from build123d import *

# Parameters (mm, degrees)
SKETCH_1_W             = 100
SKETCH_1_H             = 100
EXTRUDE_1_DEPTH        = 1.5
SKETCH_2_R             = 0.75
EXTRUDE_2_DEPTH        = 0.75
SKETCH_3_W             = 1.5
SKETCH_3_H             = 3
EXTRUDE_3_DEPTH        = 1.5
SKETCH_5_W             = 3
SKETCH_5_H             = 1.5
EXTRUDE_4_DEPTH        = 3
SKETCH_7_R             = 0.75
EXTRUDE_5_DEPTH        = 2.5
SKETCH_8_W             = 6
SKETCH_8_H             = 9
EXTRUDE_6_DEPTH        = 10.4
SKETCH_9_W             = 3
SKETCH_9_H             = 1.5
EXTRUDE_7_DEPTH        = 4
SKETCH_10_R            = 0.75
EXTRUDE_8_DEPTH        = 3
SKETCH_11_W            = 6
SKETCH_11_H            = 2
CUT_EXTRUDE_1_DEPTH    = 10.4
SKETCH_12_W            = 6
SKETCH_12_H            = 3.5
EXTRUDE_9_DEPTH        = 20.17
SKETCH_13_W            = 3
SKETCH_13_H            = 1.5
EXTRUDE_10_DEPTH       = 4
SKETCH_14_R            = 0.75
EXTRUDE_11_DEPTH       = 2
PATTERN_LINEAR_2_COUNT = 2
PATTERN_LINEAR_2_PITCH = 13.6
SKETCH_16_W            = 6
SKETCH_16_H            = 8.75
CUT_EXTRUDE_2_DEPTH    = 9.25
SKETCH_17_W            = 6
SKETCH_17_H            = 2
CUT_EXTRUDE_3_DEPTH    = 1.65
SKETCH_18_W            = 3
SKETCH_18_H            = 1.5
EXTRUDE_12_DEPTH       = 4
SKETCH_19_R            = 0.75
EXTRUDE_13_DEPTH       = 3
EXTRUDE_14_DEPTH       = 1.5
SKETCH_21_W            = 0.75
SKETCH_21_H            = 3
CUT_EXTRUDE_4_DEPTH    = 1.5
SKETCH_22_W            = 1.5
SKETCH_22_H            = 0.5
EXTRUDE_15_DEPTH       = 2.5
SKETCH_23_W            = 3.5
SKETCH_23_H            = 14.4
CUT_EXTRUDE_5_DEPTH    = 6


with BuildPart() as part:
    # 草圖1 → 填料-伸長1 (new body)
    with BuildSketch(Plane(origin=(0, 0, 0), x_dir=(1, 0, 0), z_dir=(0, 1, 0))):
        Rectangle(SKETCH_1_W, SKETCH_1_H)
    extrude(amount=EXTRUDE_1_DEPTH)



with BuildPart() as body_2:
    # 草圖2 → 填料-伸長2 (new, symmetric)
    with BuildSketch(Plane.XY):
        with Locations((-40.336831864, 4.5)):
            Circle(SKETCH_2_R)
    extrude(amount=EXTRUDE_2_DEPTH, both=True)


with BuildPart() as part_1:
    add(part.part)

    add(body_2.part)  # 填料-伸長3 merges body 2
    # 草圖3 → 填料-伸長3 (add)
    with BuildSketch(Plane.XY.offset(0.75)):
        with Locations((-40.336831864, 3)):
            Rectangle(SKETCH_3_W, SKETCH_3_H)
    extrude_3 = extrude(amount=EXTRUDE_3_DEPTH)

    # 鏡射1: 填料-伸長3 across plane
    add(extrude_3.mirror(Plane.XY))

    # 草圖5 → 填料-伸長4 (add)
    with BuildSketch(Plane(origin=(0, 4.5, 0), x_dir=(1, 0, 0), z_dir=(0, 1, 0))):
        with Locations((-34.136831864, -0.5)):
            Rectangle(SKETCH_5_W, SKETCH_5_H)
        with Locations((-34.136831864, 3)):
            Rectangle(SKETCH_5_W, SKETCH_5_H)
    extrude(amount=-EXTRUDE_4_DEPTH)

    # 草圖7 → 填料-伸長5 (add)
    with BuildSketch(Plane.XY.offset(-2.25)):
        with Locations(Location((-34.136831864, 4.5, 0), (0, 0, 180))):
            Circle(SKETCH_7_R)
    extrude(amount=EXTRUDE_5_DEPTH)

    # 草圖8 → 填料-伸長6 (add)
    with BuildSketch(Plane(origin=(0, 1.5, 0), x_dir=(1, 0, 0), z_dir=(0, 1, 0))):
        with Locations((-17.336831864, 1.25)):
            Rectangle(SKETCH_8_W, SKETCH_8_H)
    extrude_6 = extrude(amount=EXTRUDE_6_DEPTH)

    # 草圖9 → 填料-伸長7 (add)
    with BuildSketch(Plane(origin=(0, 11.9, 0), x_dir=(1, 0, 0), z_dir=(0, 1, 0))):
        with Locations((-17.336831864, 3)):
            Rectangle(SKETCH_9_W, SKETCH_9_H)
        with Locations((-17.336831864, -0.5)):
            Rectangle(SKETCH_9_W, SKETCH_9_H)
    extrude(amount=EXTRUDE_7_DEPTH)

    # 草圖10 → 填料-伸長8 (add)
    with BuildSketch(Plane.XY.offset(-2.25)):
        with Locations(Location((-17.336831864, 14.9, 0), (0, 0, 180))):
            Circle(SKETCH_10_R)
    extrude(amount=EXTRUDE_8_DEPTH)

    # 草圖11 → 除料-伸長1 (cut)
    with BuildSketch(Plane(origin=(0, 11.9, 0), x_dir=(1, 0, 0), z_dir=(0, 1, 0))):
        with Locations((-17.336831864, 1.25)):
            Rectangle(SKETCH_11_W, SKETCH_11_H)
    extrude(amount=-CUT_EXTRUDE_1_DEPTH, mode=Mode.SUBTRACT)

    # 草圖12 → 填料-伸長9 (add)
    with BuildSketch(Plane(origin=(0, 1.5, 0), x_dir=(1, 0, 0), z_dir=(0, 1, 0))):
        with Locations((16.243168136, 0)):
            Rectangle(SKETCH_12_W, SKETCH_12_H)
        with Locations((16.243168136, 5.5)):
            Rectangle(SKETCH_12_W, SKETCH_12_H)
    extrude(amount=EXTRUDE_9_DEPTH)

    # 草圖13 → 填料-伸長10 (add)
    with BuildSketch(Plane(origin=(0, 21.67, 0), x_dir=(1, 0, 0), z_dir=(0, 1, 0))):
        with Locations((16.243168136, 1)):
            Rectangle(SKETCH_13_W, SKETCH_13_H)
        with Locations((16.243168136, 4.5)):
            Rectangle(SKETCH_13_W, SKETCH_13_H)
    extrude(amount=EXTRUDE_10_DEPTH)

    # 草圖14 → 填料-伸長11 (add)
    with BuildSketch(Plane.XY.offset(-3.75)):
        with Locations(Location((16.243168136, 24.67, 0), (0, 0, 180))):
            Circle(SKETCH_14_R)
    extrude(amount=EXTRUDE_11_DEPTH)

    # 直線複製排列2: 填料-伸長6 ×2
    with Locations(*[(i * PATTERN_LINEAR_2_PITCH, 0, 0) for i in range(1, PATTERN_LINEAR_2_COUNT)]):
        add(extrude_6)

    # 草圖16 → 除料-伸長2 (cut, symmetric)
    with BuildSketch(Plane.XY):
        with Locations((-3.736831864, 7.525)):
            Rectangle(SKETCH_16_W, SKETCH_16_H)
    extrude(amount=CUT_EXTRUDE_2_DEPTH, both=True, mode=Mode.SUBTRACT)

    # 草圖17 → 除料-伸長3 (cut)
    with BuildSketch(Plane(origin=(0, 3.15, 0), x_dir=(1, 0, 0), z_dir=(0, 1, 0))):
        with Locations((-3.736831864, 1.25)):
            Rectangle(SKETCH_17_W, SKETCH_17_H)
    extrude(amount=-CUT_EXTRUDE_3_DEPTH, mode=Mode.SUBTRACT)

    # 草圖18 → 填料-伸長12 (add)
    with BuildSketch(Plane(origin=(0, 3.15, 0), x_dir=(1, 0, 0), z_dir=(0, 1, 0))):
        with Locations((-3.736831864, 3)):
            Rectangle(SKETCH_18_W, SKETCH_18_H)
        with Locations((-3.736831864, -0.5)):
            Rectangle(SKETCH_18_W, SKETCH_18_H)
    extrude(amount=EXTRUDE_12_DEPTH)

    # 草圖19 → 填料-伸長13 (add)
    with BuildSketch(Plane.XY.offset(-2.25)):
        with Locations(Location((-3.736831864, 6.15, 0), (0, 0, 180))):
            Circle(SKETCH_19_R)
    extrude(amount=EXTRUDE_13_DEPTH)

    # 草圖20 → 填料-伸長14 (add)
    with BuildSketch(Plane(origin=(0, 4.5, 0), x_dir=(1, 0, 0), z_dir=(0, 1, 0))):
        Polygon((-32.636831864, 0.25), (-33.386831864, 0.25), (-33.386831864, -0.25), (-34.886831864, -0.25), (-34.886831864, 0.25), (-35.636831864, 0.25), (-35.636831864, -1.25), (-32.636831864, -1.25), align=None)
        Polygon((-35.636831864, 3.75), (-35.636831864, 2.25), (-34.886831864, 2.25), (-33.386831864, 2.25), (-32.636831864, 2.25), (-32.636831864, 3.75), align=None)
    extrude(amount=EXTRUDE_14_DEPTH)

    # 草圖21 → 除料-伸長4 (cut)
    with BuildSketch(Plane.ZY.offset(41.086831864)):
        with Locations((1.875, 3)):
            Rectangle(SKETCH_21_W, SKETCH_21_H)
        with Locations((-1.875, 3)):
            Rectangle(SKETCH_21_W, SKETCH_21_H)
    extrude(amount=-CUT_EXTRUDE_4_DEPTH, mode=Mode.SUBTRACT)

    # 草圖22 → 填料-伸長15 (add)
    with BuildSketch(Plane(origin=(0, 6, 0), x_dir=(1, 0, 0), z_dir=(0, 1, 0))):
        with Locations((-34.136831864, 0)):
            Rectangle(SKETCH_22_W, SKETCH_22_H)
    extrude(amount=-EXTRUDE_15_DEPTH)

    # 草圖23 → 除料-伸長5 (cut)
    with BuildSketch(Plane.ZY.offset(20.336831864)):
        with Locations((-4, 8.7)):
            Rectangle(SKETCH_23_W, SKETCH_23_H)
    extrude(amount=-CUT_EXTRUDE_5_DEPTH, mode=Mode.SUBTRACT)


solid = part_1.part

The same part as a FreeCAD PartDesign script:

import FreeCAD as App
import Part
import Sketcher
Q = App.Units.Quantity


def add_polygon(sketch, points):
    """Adds a closed chain of lines whose ends are joined by coincident constraints."""
    first, n = sketch.GeometryCount, len(points)
    for a, b in zip(points, points[1:] + points[:1]):
        sketch.addGeometry(Part.LineSegment(App.Vector(*a, 0), App.Vector(*b, 0)), False)
    for i in range(n):
        sketch.addConstraint(Sketcher.Constraint("Coincident", first + i, 2, first + (i + 1) % n, 1))

doc = App.newDocument("Part")
body = doc.addObject("PartDesign::Body", "Body")

sketch1 = body.newObject("Sketcher::SketchObject", "Sketch")
sketch1.AttachmentSupport = (doc.getObject("XZ_Plane"), [""])
sketch1.MapMode = "FlatFace"
add_polygon(sketch1, [(-50, -50), (-50, 50), (50, 50), (50, -50)])
sketch1.addConstraint([
    Sketcher.Constraint("Vertical", 0),
    Sketcher.Constraint("Horizontal", 1),
    Sketcher.Constraint("Vertical", 2),
    Sketcher.Constraint("Horizontal", 3),
    Sketcher.Constraint("Symmetric", 0, 2, 2, 2, -1, 1),
    Sketcher.Constraint("Equal", 3, 0),
    Sketcher.Constraint("DistanceX", 1, 1, 1, 2, Q("100 mm")),
])
pad1 = body.newObject("PartDesign::Pad", "Pad")
pad1.Profile = sketch1
pad1.Length = 1.5
pad1.Reversed = True
body2 = doc.addObject("PartDesign::Body", "Body001")

sketch2 = body2.newObject("Sketcher::SketchObject", "Sketch001")
sketch2.AttachmentSupport = (doc.getObject("XY_Plane001"), [""])
sketch2.MapMode = "FlatFace"
sketch2.addGeometry(Part.Circle(App.Vector(-40.336832, 4.5, 0), App.Vector(0, 0, 1), 0.75), False)
sketch2.addConstraint([
    Sketcher.Constraint("Diameter", 0, Q("1.5 mm")),
    Sketcher.Constraint("DistanceY", -1, 1, 0, 3, Q("4.5 mm")),
    Sketcher.Constraint("DistanceX", 0, 3, -1, 1, Q("40.336832 mm")),
])
pad2 = body2.newObject("PartDesign::Pad", "Pad001")
pad2.Profile = sketch2
pad2.Length = 1.5
pad2.Midplane = True
body.AllowCompound = True
doc.recompute()

boolean = body.newObject("PartDesign::Boolean", "Boolean")
boolean.Type = "Fuse"
boolean.addObjects([body2])

sketch3 = body.newObject("Sketcher::SketchObject", "Sketch002")
sketch3.AttachmentSupport = (doc.getObject("XY_Plane"), [""])
sketch3.MapMode = "FlatFace"
sketch3.AttachmentOffset = App.Placement(App.Vector(0, 0, 0.75), App.Rotation())
add_polygon(sketch3, [(-41.086832, 4.5), (-41.086832, 1.5), (-39.586832, 1.5), (-39.586832, 4.5)])
sketch3.addConstraint([
    Sketcher.Constraint("Vertical", 0),
    Sketcher.Constraint("Horizontal", 1),
    Sketcher.Constraint("Vertical", 2),
    Sketcher.Constraint("Horizontal", 3),
    Sketcher.Constraint("DistanceY", 0, 2, 0, 1, Q("3 mm")),
    Sketcher.Constraint("DistanceX", 1, 1, 1, 2, Q("1.5 mm")),
    Sketcher.Constraint("DistanceY", -1, 1, 0, 2, Q("1.5 mm")),
    Sketcher.Constraint("DistanceX", 0, 2, -1, 1, Q("41.086832 mm")),
])
pad3 = body.newObject("PartDesign::Pad", "Pad002")
pad3.Profile = sketch3
pad3.Length = 1.5
doc.recompute()

mirrored = body.newObject("PartDesign::Mirrored", "Mirrored")
mirrored.Originals = [pad3]
mirrored.MirrorPlane = (doc.getObject("XY_Plane"), [""])
body.Tip = mirrored

sketch4 = body.newObject("Sketcher::SketchObject", "Sketch003")
sketch4.AttachmentSupport = (doc.getObject("XZ_Plane"), [""])
sketch4.MapMode = "FlatFace"
sketch4.AttachmentOffset = App.Placement(App.Vector(0, 0, -4.5), App.Rotation())
add_polygon(sketch4, [(-35.636832, -0.25), (-35.636832, 1.25), (-32.636832, 1.25), (-32.636832, -0.25)])
add_polygon(sketch4, [(-35.636832, -3.75), (-35.636832, -2.25), (-32.636832, -2.25), (-32.636832, -3.75)])
sketch4.addConstraint([
    Sketcher.Constraint("Vertical", 0),
    Sketcher.Constraint("Horizontal", 1),
    Sketcher.Constraint("Vertical", 2),
    Sketcher.Constraint("Horizontal", 3),
    Sketcher.Constraint("Vertical", 4),
    Sketcher.Constraint("Horizontal", 5),
    Sketcher.Constraint("Vertical", 6),
    Sketcher.Constraint("Horizontal", 7),
    Sketcher.Constraint("Vertical", 3, 2, 4, 2),
    Sketcher.Constraint("Vertical", 2, 2, 5, 2),
    Sketcher.Constraint("Equal", 2, 4),
    Sketcher.Constraint("DistanceX", 1, 1, 1, 2, Q("3 mm")),
    Sketcher.Constraint("DistanceY", 0, 1, 0, 2, Q("1.5 mm")),
    Sketcher.Constraint("DistanceY", 4, 2, 3, 2, Q("2 mm")),
    Sketcher.Constraint("DistanceY", -1, 1, 0, 2, Q("1.25 mm")),
    Sketcher.Constraint("DistanceX", 0, 2, -1, 1, Q("35.636832 mm")),
])
pad4 = body.newObject("PartDesign::Pad", "Pad003")
pad4.Profile = sketch4
pad4.Length = 3

sketch5 = body.newObject("Sketcher::SketchObject", "Sketch004")
sketch5.AttachmentSupport = (doc.getObject("XY_Plane"), [""])
sketch5.MapMode = "FlatFace"
sketch5.AttachmentOffset = App.Placement(App.Vector(0, 0, -2.25), App.Rotation())
sketch5.addGeometry(Part.Circle(App.Vector(-34.136832, 4.5, 0), App.Vector(0, 0, 1), 0.75), False)
sketch5.addConstraint([
    Sketcher.Constraint("Diameter", 0, Q("1.5 mm")),
    Sketcher.Constraint("DistanceY", -1, 1, 0, 3, Q("4.5 mm")),
    Sketcher.Constraint("DistanceX", 0, 3, -1, 1, Q("34.136832 mm")),
])
pad5 = body.newObject("PartDesign::Pad", "Pad004")
pad5.Profile = sketch5
pad5.Length = 2.5

sketch6 = body.newObject("Sketcher::SketchObject", "Sketch005")
sketch6.AttachmentSupport = (doc.getObject("XZ_Plane"), [""])
sketch6.MapMode = "FlatFace"
sketch6.AttachmentOffset = App.Placement(App.Vector(0, 0, -1.5), App.Rotation())
add_polygon(sketch6, [(-20.336832, -5.75), (-20.336832, 3.25), (-14.336832, 3.25), (-14.336832, -5.75)])
sketch6.addConstraint([
    Sketcher.Constraint("Vertical", 0),
    Sketcher.Constraint("Horizontal", 1),
    Sketcher.Constraint("Vertical", 2),
    Sketcher.Constraint("Horizontal", 3),
    Sketcher.Constraint("DistanceX", 1, 1, 1, 2, Q("6 mm")),
    Sketcher.Constraint("DistanceY", 0, 1, 0, 2, Q("9 mm")),
    Sketcher.Constraint("DistanceY", -1, 1, 0, 2, Q("3.25 mm")),
    Sketcher.Constraint("DistanceX", 0, 2, -1, 1, Q("20.336832 mm")),
])
pad6 = body.newObject("PartDesign::Pad", "Pad005")
pad6.Profile = sketch6
pad6.Length = 10.4
pad6.Reversed = True

sketch7 = body.newObject("Sketcher::SketchObject", "Sketch006")
sketch7.AttachmentSupport = (doc.getObject("XZ_Plane"), [""])
sketch7.MapMode = "FlatFace"
sketch7.AttachmentOffset = App.Placement(App.Vector(0, 0, -11.9), App.Rotation())
add_polygon(sketch7, [(-18.836832, -3.75), (-18.836832, -2.25), (-15.836832, -2.25), (-15.836832, -3.75)])
add_polygon(sketch7, [(-18.836832, -0.25), (-18.836832, 1.25), (-15.836832, 1.25), (-15.836832, -0.25)])
sketch7.addConstraint([
    Sketcher.Constraint("Vertical", 0),
    Sketcher.Constraint("Horizontal", 1),
    Sketcher.Constraint("Vertical", 2),
    Sketcher.Constraint("Horizontal", 3),
    Sketcher.Constraint("Vertical", 4),
    Sketcher.Constraint("Horizontal", 5),
    Sketcher.Constraint("Vertical", 6),
    Sketcher.Constraint("Horizontal", 7),
    Sketcher.Constraint("Vertical", 3, 2, 4, 2),
    Sketcher.Constraint("Vertical", 2, 2, 5, 2),
    Sketcher.Constraint("Equal", 2, 4),
    Sketcher.Constraint("DistanceX", 1, 1, 1, 2, Q("3 mm")),
    Sketcher.Constraint("DistanceY", 0, 1, 0, 2, Q("1.5 mm")),
    Sketcher.Constraint("DistanceY", 3, 2, 4, 2, Q("5 mm")),
    Sketcher.Constraint("DistanceY", 0, 2, -1, 1, Q("2.25 mm")),
    Sketcher.Constraint("DistanceX", 0, 2, -1, 1, Q("18.836832 mm")),
])
pad7 = body.newObject("PartDesign::Pad", "Pad006")
pad7.Profile = sketch7
pad7.Length = 4
pad7.Reversed = True

sketch8 = body.newObject("Sketcher::SketchObject", "Sketch007")
sketch8.AttachmentSupport = (doc.getObject("XY_Plane"), [""])
sketch8.MapMode = "FlatFace"
sketch8.AttachmentOffset = App.Placement(App.Vector(0, 0, -2.25), App.Rotation())
sketch8.addGeometry(Part.Circle(App.Vector(-17.336832, 14.9, 0), App.Vector(0, 0, 1), 0.75), False)
sketch8.addConstraint([
    Sketcher.Constraint("Diameter", 0, Q("1.5 mm")),
    Sketcher.Constraint("DistanceY", -1, 1, 0, 3, Q("14.9 mm")),
    Sketcher.Constraint("DistanceX", 0, 3, -1, 1, Q("17.336832 mm")),
])
pad8 = body.newObject("PartDesign::Pad", "Pad007")
pad8.Profile = sketch8
pad8.Length = 3

sketch9 = body.newObject("Sketcher::SketchObject", "Sketch008")
sketch9.AttachmentSupport = (doc.getObject("XZ_Plane"), [""])
sketch9.MapMode = "FlatFace"
sketch9.AttachmentOffset = App.Placement(App.Vector(0, 0, -11.9), App.Rotation())
add_polygon(sketch9, [(-20.336832, -2.25), (-20.336832, -0.25), (-14.336832, -0.25), (-14.336832, -2.25)])
sketch9.addConstraint([
    Sketcher.Constraint("Vertical", 0),
    Sketcher.Constraint("Horizontal", 1),
    Sketcher.Constraint("Vertical", 2),
    Sketcher.Constraint("Horizontal", 3),
    Sketcher.Constraint("DistanceX", 1, 1, 1, 2, Q("6 mm")),
    Sketcher.Constraint("DistanceY", 0, 1, 0, 2, Q("2 mm")),
    Sketcher.Constraint("DistanceY", 0, 2, -1, 1, Q("0.25 mm")),
    Sketcher.Constraint("DistanceX", 0, 2, -1, 1, Q("20.336832 mm")),
])
pocket1 = body.newObject("PartDesign::Pocket", "Pocket")
pocket1.Profile = sketch9
pocket1.Length = 10.4
pocket1.Reversed = True

sketch10 = body.newObject("Sketcher::SketchObject", "Sketch009")
sketch10.AttachmentSupport = (doc.getObject("XZ_Plane"), [""])
sketch10.MapMode = "FlatFace"
sketch10.AttachmentOffset = App.Placement(App.Vector(0, 0, -1.5), App.Rotation())
add_polygon(sketch10, [(13.243168, -1.75), (13.243168, 1.75), (19.243168, 1.75), (19.243168, -1.75)])
add_polygon(sketch10, [(13.243168, -7.25), (13.243168, -3.75), (19.243168, -3.75), (19.243168, -7.25)])
sketch10.addConstraint([
    Sketcher.Constraint("Vertical", 0),
    Sketcher.Constraint("Horizontal", 1),
    Sketcher.Constraint("Vertical", 2),
    Sketcher.Constraint("Horizontal", 3),
    Sketcher.Constraint("Vertical", 4),
    Sketcher.Constraint("Horizontal", 5),
    Sketcher.Constraint("Vertical", 6),
    Sketcher.Constraint("Horizontal", 7),
    Sketcher.Constraint("Vertical", 3, 2, 4, 2),
    Sketcher.Constraint("Vertical", 2, 2, 5, 2),
    Sketcher.Constraint("Equal", 2, 4),
    Sketcher.Constraint("DistanceX", 1, 1, 1, 2, Q("6 mm")),
    Sketcher.Constraint("DistanceY", 0, 1, 0, 2, Q("3.5 mm")),
    Sketcher.Constraint("DistanceY", 4, 2, 3, 2, Q("2 mm")),
    Sketcher.Constraint("DistanceY", -1, 1, 0, 2, Q("1.75 mm")),
    Sketcher.Constraint("DistanceX", -1, 1, 0, 2, Q("13.243168 mm")),
])
pad9 = body.newObject("PartDesign::Pad", "Pad008")
pad9.Profile = sketch10
pad9.Length = 20.17
pad9.Reversed = True

sketch11 = body.newObject("Sketcher::SketchObject", "Sketch010")
sketch11.AttachmentSupport = (doc.getObject("XZ_Plane"), [""])
sketch11.MapMode = "FlatFace"
sketch11.AttachmentOffset = App.Placement(App.Vector(0, 0, -21.67), App.Rotation())
add_polygon(sketch11, [(14.743168, -1.75), (14.743168, -0.25), (17.743168, -0.25), (17.743168, -1.75)])
add_polygon(sketch11, [(14.743168, -5.25), (14.743168, -3.75), (17.743168, -3.75), (17.743168, -5.25)])
sketch11.addConstraint([
    Sketcher.Constraint("Vertical", 0),
    Sketcher.Constraint("Horizontal", 1),
    Sketcher.Constraint("Vertical", 2),
    Sketcher.Constraint("Horizontal", 3),
    Sketcher.Constraint("Vertical", 4),
    Sketcher.Constraint("Horizontal", 5),
    Sketcher.Constraint("Vertical", 6),
    Sketcher.Constraint("Horizontal", 7),
    Sketcher.Constraint("Vertical", 3, 2, 4, 2),
    Sketcher.Constraint("Vertical", 2, 2, 5, 2),
    Sketcher.Constraint("Equal", 2, 4),
    Sketcher.Constraint("DistanceX", 1, 1, 1, 2, Q("3 mm")),
    Sketcher.Constraint("DistanceY", 0, 1, 0, 2, Q("1.5 mm")),
    Sketcher.Constraint("DistanceY", 4, 2, 3, 2, Q("2 mm")),
    Sketcher.Constraint("DistanceY", 0, 2, -1, 1, Q("0.25 mm")),
    Sketcher.Constraint("DistanceX", -1, 1, 0, 2, Q("14.743168 mm")),
])
pad10 = body.newObject("PartDesign::Pad", "Pad009")
pad10.Profile = sketch11
pad10.Length = 4
pad10.Reversed = True

sketch12 = body.newObject("Sketcher::SketchObject", "Sketch011")
sketch12.AttachmentSupport = (doc.getObject("XY_Plane"), [""])
sketch12.MapMode = "FlatFace"
sketch12.AttachmentOffset = App.Placement(App.Vector(0, 0, -3.75), App.Rotation())
sketch12.addGeometry(Part.Circle(App.Vector(16.243168, 24.67, 0), App.Vector(0, 0, 1), 0.75), False)
sketch12.addConstraint([
    Sketcher.Constraint("Diameter", 0, Q("1.5 mm")),
    Sketcher.Constraint("DistanceY", -1, 1, 0, 3, Q("24.67 mm")),
    Sketcher.Constraint("DistanceX", -1, 1, 0, 3, Q("16.243168 mm")),
])
pad11 = body.newObject("PartDesign::Pad", "Pad010")
pad11.Profile = sketch12
pad11.Length = 2
doc.recompute()

linearpattern = body.newObject("PartDesign::LinearPattern", "LinearPattern")
linearpattern.Originals = [pad6]
linearpattern.Direction = (doc.getObject("X_Axis"), [""])
linearpattern.Mode = "offset"
linearpattern.Offset = 13.6
linearpattern.Occurrences = 2
body.Tip = linearpattern

sketch13 = body.newObject("Sketcher::SketchObject", "Sketch012")
sketch13.AttachmentSupport = (doc.getObject("XY_Plane"), [""])
sketch13.MapMode = "FlatFace"
add_polygon(sketch13, [(-6.736832, 11.9), (-6.736832, 3.15), (-0.736832, 3.15), (-0.736832, 11.9)])
sketch13.addConstraint([
    Sketcher.Constraint("Vertical", 0),
    Sketcher.Constraint("Horizontal", 1),
    Sketcher.Constraint("Vertical", 2),
    Sketcher.Constraint("Horizontal", 3),
    Sketcher.Constraint("DistanceX", 1, 1, 1, 2, Q("6 mm")),
    Sketcher.Constraint("DistanceY", 0, 2, 0, 1, Q("8.75 mm")),
    Sketcher.Constraint("DistanceY", -1, 1, 2, 2, Q("11.9 mm")),
    Sketcher.Constraint("DistanceX", 0, 2, -1, 1, Q("6.736832 mm")),
])
pocket2 = body.newObject("PartDesign::Pocket", "Pocket001")
pocket2.Profile = sketch13
pocket2.Length = 18.5
pocket2.Midplane = True

sketch14 = body.newObject("Sketcher::SketchObject", "Sketch013")
sketch14.AttachmentSupport = (doc.getObject("XZ_Plane"), [""])
sketch14.MapMode = "FlatFace"
sketch14.AttachmentOffset = App.Placement(App.Vector(0, 0, -3.15), App.Rotation())
add_polygon(sketch14, [(-6.736832, -2.25), (-6.736832, -0.25), (-0.736832, -0.25), (-0.736832, -2.25)])
sketch14.addConstraint([
    Sketcher.Constraint("Vertical", 0),
    Sketcher.Constraint("Horizontal", 1),
    Sketcher.Constraint("Vertical", 2),
    Sketcher.Constraint("Horizontal", 3),
    Sketcher.Constraint("DistanceX", 1, 1, 1, 2, Q("6 mm")),
    Sketcher.Constraint("DistanceY", 0, 1, 0, 2, Q("2 mm")),
    Sketcher.Constraint("DistanceY", 0, 2, -1, 1, Q("0.25 mm")),
    Sketcher.Constraint("DistanceX", 0, 2, -1, 1, Q("6.736832 mm")),
])
pocket3 = body.newObject("PartDesign::Pocket", "Pocket002")
pocket3.Profile = sketch14
pocket3.Length = 1.65
pocket3.Reversed = True

sketch15 = body.newObject("Sketcher::SketchObject", "Sketch014")
sketch15.AttachmentSupport = (doc.getObject("XZ_Plane"), [""])
sketch15.MapMode = "FlatFace"
sketch15.AttachmentOffset = App.Placement(App.Vector(0, 0, -3.15), App.Rotation())
add_polygon(sketch15, [(-5.236832, -3.75), (-5.236832, -2.25), (-2.236832, -2.25), (-2.236832, -3.75)])
add_polygon(sketch15, [(-5.236832, -0.25), (-5.236832, 1.25), (-2.236832, 1.25), (-2.236832, -0.25)])
sketch15.addConstraint([
    Sketcher.Constraint("Vertical", 0),
    Sketcher.Constraint("Horizontal", 1),
    Sketcher.Constraint("Vertical", 2),
    Sketcher.Constraint("Horizontal", 3),
    Sketcher.Constraint("Vertical", 4),
    Sketcher.Constraint("Horizontal", 5),
    Sketcher.Constraint("Vertical", 6),
    Sketcher.Constraint("Horizontal", 7),
    Sketcher.Constraint("Vertical", 3, 2, 4, 2),
    Sketcher.Constraint("Vertical", 2, 2, 5, 2),
    Sketcher.Constraint("Equal", 2, 4),
    Sketcher.Constraint("DistanceX", 1, 1, 1, 2, Q("3 mm")),
    Sketcher.Constraint("DistanceY", 0, 1, 0, 2, Q("1.5 mm")),
    Sketcher.Constraint("DistanceY", 3, 2, 4, 2, Q("5 mm")),
    Sketcher.Constraint("DistanceY", 0, 2, -1, 1, Q("2.25 mm")),
    Sketcher.Constraint("DistanceX", 0, 2, -1, 1, Q("5.236832 mm")),
])
pad12 = body.newObject("PartDesign::Pad", "Pad011")
pad12.Profile = sketch15
pad12.Length = 4
pad12.Reversed = True

sketch16 = body.newObject("Sketcher::SketchObject", "Sketch015")
sketch16.AttachmentSupport = (doc.getObject("XY_Plane"), [""])
sketch16.MapMode = "FlatFace"
sketch16.AttachmentOffset = App.Placement(App.Vector(0, 0, -2.25), App.Rotation())
sketch16.addGeometry(Part.Circle(App.Vector(-3.736832, 6.15, 0), App.Vector(0, 0, 1), 0.75), False)
sketch16.addConstraint([
    Sketcher.Constraint("Diameter", 0, Q("1.5 mm")),
    Sketcher.Constraint("DistanceY", -1, 1, 0, 3, Q("6.15 mm")),
    Sketcher.Constraint("DistanceX", 0, 3, -1, 1, Q("3.736832 mm")),
])
pad13 = body.newObject("PartDesign::Pad", "Pad012")
pad13.Profile = sketch16
pad13.Length = 3

sketch17 = body.newObject("Sketcher::SketchObject", "Sketch016")
sketch17.AttachmentSupport = (doc.getObject("XZ_Plane"), [""])
sketch17.MapMode = "FlatFace"
sketch17.AttachmentOffset = App.Placement(App.Vector(0, 0, -4.5), App.Rotation())
add_polygon(sketch17, [(-32.636832, -0.25), (-33.386832, -0.25), (-33.386832, 0.25), (-34.886832, 0.25), (-34.886832, -0.25), (-35.636832, -0.25), (-35.636832, 1.25), (-32.636832, 1.25)])
add_polygon(sketch17, [(-35.636832, -3.75), (-35.636832, -2.25), (-32.636832, -2.25), (-32.636832, -3.75)])
sketch17.addConstraint([
    Sketcher.Constraint("Horizontal", 0),
    Sketcher.Constraint("Vertical", 1),
    Sketcher.Constraint("Horizontal", 2),
    Sketcher.Constraint("Vertical", 3),
    Sketcher.Constraint("Horizontal", 4),
    Sketcher.Constraint("Vertical", 5),
    Sketcher.Constraint("Horizontal", 6),
    Sketcher.Constraint("Vertical", 7),
    Sketcher.Constraint("Vertical", 8),
    Sketcher.Constraint("Horizontal", 9),
    Sketcher.Constraint("Vertical", 10),
    Sketcher.Constraint("Horizontal", 11),
    Sketcher.Constraint("Horizontal", 0, 2, 3, 2),
    Sketcher.Constraint("Vertical", 5, 2, 8, 2),
    Sketcher.Constraint("Vertical", 7, 2, 9, 2),
    Sketcher.Constraint("Equal", 0, 4),
    Sketcher.Constraint("Equal", 2, 5),
    Sketcher.Constraint("Equal", 7, 8),
    Sketcher.Constraint("DistanceX", 6, 1, 6, 2, Q("3 mm")),
    Sketcher.Constraint("DistanceX", 2, 2, 2, 1, Q("1.5 mm")),
    Sketcher.Constraint("DistanceY", 1, 1, 1, 2, Q("0.5 mm")),
    Sketcher.Constraint("DistanceY", 8, 2, 4, 2, Q("2 mm")),
    Sketcher.Constraint("DistanceY", 0, 2, -1, 1, Q("0.25 mm")),
    Sketcher.Constraint("DistanceX", 0, 2, -1, 1, Q("33.386832 mm")),
])
pad14 = body.newObject("PartDesign::Pad", "Pad013")
pad14.Profile = sketch17
pad14.Length = 1.5
pad14.Reversed = True

sketch18 = body.newObject("Sketcher::SketchObject", "Sketch017")
sketch18.AttachmentSupport = (doc.getObject("YZ_Plane"), [""])
sketch18.MapMode = "FlatFace"
sketch18.AttachmentOffset = App.Placement(App.Vector(0, 0, -41.086832), App.Rotation())
add_polygon(sketch18, [(4.5, 1.5), (1.5, 1.5), (1.5, 2.25), (4.5, 2.25)])
add_polygon(sketch18, [(4.5, -2.25), (1.5, -2.25), (1.5, -1.5), (4.5, -1.5)])
sketch18.addConstraint([
    Sketcher.Constraint("Horizontal", 0),
    Sketcher.Constraint("Vertical", 1),
    Sketcher.Constraint("Horizontal", 2),
    Sketcher.Constraint("Vertical", 3),
    Sketcher.Constraint("Horizontal", 4),
    Sketcher.Constraint("Vertical", 5),
    Sketcher.Constraint("Horizontal", 6),
    Sketcher.Constraint("Vertical", 7),
    Sketcher.Constraint("Symmetric", 1, 2, 4, 2, -1),
    Sketcher.Constraint("Symmetric", 3, 2, 6, 2, -1),
    Sketcher.Constraint("DistanceX", 0, 2, 0, 1, Q("3 mm")),
    Sketcher.Constraint("DistanceY", 5, 2, 0, 2, Q("3 mm")),
    Sketcher.Constraint("DistanceY", 1, 1, 1, 2, Q("0.75 mm")),
    Sketcher.Constraint("DistanceX", -1, 1, 0, 2, Q("1.5 mm")),
])
pocket4 = body.newObject("PartDesign::Pocket", "Pocket003")
pocket4.Profile = sketch18
pocket4.Length = 1.5
pocket4.Reversed = True

sketch19 = body.newObject("Sketcher::SketchObject", "Sketch018")
sketch19.AttachmentSupport = (doc.getObject("XZ_Plane"), [""])
sketch19.MapMode = "FlatFace"
sketch19.AttachmentOffset = App.Placement(App.Vector(0, 0, -6), App.Rotation())
add_polygon(sketch19, [(-34.886832, -0.25), (-34.886832, 0.25), (-33.386832, 0.25), (-33.386832, -0.25)])
sketch19.addConstraint([
    Sketcher.Constraint("Vertical", 0),
    Sketcher.Constraint("Horizontal", 1),
    Sketcher.Constraint("Vertical", 2),
    Sketcher.Constraint("Horizontal", 3),
    Sketcher.Constraint("DistanceX", 1, 1, 1, 2, Q("1.5 mm")),
    Sketcher.Constraint("DistanceY", 0, 1, 0, 2, Q("0.5 mm")),
    Sketcher.Constraint("DistanceY", -1, 1, 0, 2, Q("0.25 mm")),
    Sketcher.Constraint("DistanceX", 0, 2, -1, 1, Q("34.886832 mm")),
])
pad15 = body.newObject("PartDesign::Pad", "Pad014")
pad15.Profile = sketch19
pad15.Length = 2.5

sketch20 = body.newObject("Sketcher::SketchObject", "Sketch019")
sketch20.AttachmentSupport = (doc.getObject("YZ_Plane"), [""])
sketch20.MapMode = "FlatFace"
sketch20.AttachmentOffset = App.Placement(App.Vector(0, 0, -20.336832), App.Rotation())
add_polygon(sketch20, [(15.9, -5.75), (1.5, -5.75), (1.5, -2.25), (15.9, -2.25)])
sketch20.addConstraint([
    Sketcher.Constraint("Horizontal", 0),
    Sketcher.Constraint("Vertical", 1),
    Sketcher.Constraint("Horizontal", 2),
    Sketcher.Constraint("Vertical", 3),
    Sketcher.Constraint("DistanceX", 0, 2, 0, 1, Q("14.4 mm")),
    Sketcher.Constraint("DistanceY", 1, 1, 1, 2, Q("3.5 mm")),
    Sketcher.Constraint("DistanceX", -1, 1, 0, 2, Q("1.5 mm")),
    Sketcher.Constraint("DistanceY", 0, 2, -1, 1, Q("5.75 mm")),
])
pocket5 = body.newObject("PartDesign::Pocket", "Pocket004")
pocket5.Profile = sketch20
pocket5.Length = 6
pocket5.Reversed = True

doc.recompute()
